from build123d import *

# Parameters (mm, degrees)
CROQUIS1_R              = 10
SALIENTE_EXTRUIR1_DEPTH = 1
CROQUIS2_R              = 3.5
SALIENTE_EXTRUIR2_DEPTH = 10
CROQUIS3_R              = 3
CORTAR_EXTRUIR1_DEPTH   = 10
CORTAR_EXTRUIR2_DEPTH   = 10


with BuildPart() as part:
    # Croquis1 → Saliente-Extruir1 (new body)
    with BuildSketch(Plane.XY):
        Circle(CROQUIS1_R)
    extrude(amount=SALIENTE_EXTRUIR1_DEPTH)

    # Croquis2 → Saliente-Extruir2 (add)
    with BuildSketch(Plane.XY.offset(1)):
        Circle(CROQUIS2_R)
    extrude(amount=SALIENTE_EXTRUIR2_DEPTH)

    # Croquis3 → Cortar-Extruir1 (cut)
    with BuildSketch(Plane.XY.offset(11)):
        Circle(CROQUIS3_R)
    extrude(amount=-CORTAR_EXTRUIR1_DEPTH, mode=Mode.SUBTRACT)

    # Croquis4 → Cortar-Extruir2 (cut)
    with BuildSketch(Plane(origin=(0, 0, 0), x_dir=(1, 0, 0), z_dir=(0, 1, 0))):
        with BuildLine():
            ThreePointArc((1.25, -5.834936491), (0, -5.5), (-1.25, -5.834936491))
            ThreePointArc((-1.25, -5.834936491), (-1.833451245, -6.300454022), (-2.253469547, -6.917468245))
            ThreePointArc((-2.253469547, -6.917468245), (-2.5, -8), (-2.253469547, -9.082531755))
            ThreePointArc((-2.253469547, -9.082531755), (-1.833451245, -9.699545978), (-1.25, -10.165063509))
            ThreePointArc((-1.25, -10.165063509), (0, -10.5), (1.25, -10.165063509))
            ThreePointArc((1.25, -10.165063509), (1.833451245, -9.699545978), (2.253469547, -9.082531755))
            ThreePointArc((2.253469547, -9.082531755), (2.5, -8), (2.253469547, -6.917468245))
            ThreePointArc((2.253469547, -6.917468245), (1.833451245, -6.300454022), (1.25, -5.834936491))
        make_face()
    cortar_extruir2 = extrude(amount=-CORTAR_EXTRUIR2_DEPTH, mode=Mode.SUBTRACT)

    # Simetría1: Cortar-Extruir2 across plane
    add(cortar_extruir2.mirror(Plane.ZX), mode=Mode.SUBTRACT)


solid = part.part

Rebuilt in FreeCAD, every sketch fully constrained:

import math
import FreeCAD as App
import Part
import Sketcher

V = App.Vector

doc = App.newDocument("Part")
body = doc.addObject("PartDesign::Body", "Body")

# Sketch on XY plane
sketch1 = body.newObject("Sketcher::SketchObject", "Sketch")
sketch1.AttachmentSupport = (doc.getObject("XY_Plane"), [""])
sketch1.MapMode = "FlatFace"
sketch1.addGeometry(Part.Circle(V(0, 0, 0), V(0, 0, 1), 10), False)
sketch1.addConstraint([
    Sketcher.Constraint("Coincident", 0, 3, -1, 1),
    Sketcher.Constraint("Diameter", 0, 20.0),
])
pad1 = body.newObject("PartDesign::Pad", "Pad")
pad1.Profile = sketch1
pad1.Length = 1

# Sketch on XY plane
sketch2 = body.newObject("Sketcher::SketchObject", "Sketch001")
sketch2.AttachmentSupport = (doc.getObject("XY_Plane"), [""])
sketch2.MapMode = "FlatFace"
sketch2.AttachmentOffset = App.Placement(V(0, 0, 1), App.Rotation())
sketch2.addGeometry(Part.Circle(V(0, 0, 0), V(0, 0, 1), 3.5), False)
sketch2.addConstraint([
    Sketcher.Constraint("Coincident", 0, 3, -1, 1),
    Sketcher.Constraint("Diameter", 0, 7.0),
])
pad2 = body.newObject("PartDesign::Pad", "Pad001")
pad2.Profile = sketch2
pad2.Length = 10

# Sketch on XY plane
sketch3 = body.newObject("Sketcher::SketchObject", "Sketch002")
sketch3.AttachmentSupport = (doc.getObject("XY_Plane"), [""])
sketch3.MapMode = "FlatFace"
sketch3.AttachmentOffset = App.Placement(V(0, 0, 11), App.Rotation())
sketch3.addGeometry(Part.Circle(V(0, 0, 0), V(0, 0, 1), 3), False)
sketch3.addConstraint([
    Sketcher.Constraint("Coincident", 0, 3, -1, 1),
    Sketcher.Constraint("Diameter", 0, 6.0),
])
pocket1 = body.newObject("PartDesign::Pocket", "Pocket")
pocket1.Profile = sketch3
pocket1.Length = 10

# Sketch on XZ plane
sketch4 = body.newObject("Sketcher::SketchObject", "Sketch003")
sketch4.AttachmentSupport = (doc.getObject("XZ_Plane"), [""])
sketch4.MapMode = "FlatFace"
sketch4.addGeometry([
    Part.ArcOfCircle(Part.Circle(V(0, 8, 0), V(0, 0, 1), 2.5), math.radians(-120), math.radians(-60)),  # 0
    Part.ArcOfCircle(Part.Circle(V(0, 8, 0), V(0, 0, 1), 2.5), math.radians(-154), math.radians(-120)),  # 1
    Part.ArcOfCircle(Part.Circle(V(0, 8, 0), V(0, 0, 1), 2.5), math.radians(154), math.radians(206)),  # 2
    Part.ArcOfCircle(Part.Circle(V(0, 8, 0), V(0, 0, 1), 2.5), math.radians(120), math.radians(154)),  # 3
    Part.ArcOfCircle(Part.Circle(V(0, 8, 0), V(0, 0, 1), 2.5), math.radians(60), math.radians(120)),  # 4
    Part.ArcOfCircle(Part.Circle(V(0, 8, 0), V(0, 0, 1), 2.5), math.radians(26), math.radians(60)),  # 5
    Part.ArcOfCircle(Part.Circle(V(0, 8, 0), V(0, 0, 1), 2.5), math.radians(-26), math.radians(26)),  # 6
    Part.ArcOfCircle(Part.Circle(V(0, 8, 0), V(0, 0, 1), 2.5), math.radians(-60), math.radians(-26)),  # 7
], False)
sketch4.addConstraint([
    Sketcher.Constraint("Tangent", 0, 1, 1, 2),
    Sketcher.Constraint("Tangent", 1, 1, 2, 2),
    Sketcher.Constraint("Tangent", 2, 1, 3, 2),
    Sketcher.Constraint("Tangent", 3, 1, 4, 2),
    Sketcher.Constraint("Tangent", 4, 1, 5, 2),
    Sketcher.Constraint("Tangent", 5, 1, 6, 2),
    Sketcher.Constraint("Tangent", 6, 1, 7, 2),
    Sketcher.Constraint("Tangent", 7, 1, 0, 2),
    Sketcher.Constraint("Coincident", 2, 3, 0, 3),
    Sketcher.Constraint("Coincident", 4, 3, 0, 3),
    Sketcher.Constraint("Equal", 4, 5),
    Sketcher.Constraint("Symmetric", 3, 1, 4, 1, -2),
    Sketcher.Constraint("Horizontal", 2, 1, 5, 1),
    Sketcher.Constraint("Horizontal", 1, 1, 6, 1),
    Sketcher.Constraint("Horizontal", 0, 1, 7, 1),
    Sketcher.Constraint("Vertical", 1, 1, 2, 1),
    Sketcher.Constraint("Vertical", 0, 1, 3, 1),
    Sketcher.Constraint("Radius", 0, 2.5),
    Sketcher.Constraint("DistanceY", -1, 1, 0, 3, 8.0),
    Sketcher.Constraint("DistanceX", 0, 1, -1, 1, 1.25),
    Sketcher.Constraint("DistanceX", 1, 1, -1, 1, 2.25347),
])
pocket2 = body.newObject("PartDesign::Pocket", "Pocket001")
pocket2.Profile = sketch4
pocket2.Length = 10
pocket2.Reversed = True
doc.recompute()

mirrored = body.newObject("PartDesign::Mirrored", "Mirrored")
mirrored.Originals = [pocket2]
mirrored.MirrorPlane = (doc.getObject("XZ_Plane"), [""])
body.Tip = mirrored

doc.recompute()
